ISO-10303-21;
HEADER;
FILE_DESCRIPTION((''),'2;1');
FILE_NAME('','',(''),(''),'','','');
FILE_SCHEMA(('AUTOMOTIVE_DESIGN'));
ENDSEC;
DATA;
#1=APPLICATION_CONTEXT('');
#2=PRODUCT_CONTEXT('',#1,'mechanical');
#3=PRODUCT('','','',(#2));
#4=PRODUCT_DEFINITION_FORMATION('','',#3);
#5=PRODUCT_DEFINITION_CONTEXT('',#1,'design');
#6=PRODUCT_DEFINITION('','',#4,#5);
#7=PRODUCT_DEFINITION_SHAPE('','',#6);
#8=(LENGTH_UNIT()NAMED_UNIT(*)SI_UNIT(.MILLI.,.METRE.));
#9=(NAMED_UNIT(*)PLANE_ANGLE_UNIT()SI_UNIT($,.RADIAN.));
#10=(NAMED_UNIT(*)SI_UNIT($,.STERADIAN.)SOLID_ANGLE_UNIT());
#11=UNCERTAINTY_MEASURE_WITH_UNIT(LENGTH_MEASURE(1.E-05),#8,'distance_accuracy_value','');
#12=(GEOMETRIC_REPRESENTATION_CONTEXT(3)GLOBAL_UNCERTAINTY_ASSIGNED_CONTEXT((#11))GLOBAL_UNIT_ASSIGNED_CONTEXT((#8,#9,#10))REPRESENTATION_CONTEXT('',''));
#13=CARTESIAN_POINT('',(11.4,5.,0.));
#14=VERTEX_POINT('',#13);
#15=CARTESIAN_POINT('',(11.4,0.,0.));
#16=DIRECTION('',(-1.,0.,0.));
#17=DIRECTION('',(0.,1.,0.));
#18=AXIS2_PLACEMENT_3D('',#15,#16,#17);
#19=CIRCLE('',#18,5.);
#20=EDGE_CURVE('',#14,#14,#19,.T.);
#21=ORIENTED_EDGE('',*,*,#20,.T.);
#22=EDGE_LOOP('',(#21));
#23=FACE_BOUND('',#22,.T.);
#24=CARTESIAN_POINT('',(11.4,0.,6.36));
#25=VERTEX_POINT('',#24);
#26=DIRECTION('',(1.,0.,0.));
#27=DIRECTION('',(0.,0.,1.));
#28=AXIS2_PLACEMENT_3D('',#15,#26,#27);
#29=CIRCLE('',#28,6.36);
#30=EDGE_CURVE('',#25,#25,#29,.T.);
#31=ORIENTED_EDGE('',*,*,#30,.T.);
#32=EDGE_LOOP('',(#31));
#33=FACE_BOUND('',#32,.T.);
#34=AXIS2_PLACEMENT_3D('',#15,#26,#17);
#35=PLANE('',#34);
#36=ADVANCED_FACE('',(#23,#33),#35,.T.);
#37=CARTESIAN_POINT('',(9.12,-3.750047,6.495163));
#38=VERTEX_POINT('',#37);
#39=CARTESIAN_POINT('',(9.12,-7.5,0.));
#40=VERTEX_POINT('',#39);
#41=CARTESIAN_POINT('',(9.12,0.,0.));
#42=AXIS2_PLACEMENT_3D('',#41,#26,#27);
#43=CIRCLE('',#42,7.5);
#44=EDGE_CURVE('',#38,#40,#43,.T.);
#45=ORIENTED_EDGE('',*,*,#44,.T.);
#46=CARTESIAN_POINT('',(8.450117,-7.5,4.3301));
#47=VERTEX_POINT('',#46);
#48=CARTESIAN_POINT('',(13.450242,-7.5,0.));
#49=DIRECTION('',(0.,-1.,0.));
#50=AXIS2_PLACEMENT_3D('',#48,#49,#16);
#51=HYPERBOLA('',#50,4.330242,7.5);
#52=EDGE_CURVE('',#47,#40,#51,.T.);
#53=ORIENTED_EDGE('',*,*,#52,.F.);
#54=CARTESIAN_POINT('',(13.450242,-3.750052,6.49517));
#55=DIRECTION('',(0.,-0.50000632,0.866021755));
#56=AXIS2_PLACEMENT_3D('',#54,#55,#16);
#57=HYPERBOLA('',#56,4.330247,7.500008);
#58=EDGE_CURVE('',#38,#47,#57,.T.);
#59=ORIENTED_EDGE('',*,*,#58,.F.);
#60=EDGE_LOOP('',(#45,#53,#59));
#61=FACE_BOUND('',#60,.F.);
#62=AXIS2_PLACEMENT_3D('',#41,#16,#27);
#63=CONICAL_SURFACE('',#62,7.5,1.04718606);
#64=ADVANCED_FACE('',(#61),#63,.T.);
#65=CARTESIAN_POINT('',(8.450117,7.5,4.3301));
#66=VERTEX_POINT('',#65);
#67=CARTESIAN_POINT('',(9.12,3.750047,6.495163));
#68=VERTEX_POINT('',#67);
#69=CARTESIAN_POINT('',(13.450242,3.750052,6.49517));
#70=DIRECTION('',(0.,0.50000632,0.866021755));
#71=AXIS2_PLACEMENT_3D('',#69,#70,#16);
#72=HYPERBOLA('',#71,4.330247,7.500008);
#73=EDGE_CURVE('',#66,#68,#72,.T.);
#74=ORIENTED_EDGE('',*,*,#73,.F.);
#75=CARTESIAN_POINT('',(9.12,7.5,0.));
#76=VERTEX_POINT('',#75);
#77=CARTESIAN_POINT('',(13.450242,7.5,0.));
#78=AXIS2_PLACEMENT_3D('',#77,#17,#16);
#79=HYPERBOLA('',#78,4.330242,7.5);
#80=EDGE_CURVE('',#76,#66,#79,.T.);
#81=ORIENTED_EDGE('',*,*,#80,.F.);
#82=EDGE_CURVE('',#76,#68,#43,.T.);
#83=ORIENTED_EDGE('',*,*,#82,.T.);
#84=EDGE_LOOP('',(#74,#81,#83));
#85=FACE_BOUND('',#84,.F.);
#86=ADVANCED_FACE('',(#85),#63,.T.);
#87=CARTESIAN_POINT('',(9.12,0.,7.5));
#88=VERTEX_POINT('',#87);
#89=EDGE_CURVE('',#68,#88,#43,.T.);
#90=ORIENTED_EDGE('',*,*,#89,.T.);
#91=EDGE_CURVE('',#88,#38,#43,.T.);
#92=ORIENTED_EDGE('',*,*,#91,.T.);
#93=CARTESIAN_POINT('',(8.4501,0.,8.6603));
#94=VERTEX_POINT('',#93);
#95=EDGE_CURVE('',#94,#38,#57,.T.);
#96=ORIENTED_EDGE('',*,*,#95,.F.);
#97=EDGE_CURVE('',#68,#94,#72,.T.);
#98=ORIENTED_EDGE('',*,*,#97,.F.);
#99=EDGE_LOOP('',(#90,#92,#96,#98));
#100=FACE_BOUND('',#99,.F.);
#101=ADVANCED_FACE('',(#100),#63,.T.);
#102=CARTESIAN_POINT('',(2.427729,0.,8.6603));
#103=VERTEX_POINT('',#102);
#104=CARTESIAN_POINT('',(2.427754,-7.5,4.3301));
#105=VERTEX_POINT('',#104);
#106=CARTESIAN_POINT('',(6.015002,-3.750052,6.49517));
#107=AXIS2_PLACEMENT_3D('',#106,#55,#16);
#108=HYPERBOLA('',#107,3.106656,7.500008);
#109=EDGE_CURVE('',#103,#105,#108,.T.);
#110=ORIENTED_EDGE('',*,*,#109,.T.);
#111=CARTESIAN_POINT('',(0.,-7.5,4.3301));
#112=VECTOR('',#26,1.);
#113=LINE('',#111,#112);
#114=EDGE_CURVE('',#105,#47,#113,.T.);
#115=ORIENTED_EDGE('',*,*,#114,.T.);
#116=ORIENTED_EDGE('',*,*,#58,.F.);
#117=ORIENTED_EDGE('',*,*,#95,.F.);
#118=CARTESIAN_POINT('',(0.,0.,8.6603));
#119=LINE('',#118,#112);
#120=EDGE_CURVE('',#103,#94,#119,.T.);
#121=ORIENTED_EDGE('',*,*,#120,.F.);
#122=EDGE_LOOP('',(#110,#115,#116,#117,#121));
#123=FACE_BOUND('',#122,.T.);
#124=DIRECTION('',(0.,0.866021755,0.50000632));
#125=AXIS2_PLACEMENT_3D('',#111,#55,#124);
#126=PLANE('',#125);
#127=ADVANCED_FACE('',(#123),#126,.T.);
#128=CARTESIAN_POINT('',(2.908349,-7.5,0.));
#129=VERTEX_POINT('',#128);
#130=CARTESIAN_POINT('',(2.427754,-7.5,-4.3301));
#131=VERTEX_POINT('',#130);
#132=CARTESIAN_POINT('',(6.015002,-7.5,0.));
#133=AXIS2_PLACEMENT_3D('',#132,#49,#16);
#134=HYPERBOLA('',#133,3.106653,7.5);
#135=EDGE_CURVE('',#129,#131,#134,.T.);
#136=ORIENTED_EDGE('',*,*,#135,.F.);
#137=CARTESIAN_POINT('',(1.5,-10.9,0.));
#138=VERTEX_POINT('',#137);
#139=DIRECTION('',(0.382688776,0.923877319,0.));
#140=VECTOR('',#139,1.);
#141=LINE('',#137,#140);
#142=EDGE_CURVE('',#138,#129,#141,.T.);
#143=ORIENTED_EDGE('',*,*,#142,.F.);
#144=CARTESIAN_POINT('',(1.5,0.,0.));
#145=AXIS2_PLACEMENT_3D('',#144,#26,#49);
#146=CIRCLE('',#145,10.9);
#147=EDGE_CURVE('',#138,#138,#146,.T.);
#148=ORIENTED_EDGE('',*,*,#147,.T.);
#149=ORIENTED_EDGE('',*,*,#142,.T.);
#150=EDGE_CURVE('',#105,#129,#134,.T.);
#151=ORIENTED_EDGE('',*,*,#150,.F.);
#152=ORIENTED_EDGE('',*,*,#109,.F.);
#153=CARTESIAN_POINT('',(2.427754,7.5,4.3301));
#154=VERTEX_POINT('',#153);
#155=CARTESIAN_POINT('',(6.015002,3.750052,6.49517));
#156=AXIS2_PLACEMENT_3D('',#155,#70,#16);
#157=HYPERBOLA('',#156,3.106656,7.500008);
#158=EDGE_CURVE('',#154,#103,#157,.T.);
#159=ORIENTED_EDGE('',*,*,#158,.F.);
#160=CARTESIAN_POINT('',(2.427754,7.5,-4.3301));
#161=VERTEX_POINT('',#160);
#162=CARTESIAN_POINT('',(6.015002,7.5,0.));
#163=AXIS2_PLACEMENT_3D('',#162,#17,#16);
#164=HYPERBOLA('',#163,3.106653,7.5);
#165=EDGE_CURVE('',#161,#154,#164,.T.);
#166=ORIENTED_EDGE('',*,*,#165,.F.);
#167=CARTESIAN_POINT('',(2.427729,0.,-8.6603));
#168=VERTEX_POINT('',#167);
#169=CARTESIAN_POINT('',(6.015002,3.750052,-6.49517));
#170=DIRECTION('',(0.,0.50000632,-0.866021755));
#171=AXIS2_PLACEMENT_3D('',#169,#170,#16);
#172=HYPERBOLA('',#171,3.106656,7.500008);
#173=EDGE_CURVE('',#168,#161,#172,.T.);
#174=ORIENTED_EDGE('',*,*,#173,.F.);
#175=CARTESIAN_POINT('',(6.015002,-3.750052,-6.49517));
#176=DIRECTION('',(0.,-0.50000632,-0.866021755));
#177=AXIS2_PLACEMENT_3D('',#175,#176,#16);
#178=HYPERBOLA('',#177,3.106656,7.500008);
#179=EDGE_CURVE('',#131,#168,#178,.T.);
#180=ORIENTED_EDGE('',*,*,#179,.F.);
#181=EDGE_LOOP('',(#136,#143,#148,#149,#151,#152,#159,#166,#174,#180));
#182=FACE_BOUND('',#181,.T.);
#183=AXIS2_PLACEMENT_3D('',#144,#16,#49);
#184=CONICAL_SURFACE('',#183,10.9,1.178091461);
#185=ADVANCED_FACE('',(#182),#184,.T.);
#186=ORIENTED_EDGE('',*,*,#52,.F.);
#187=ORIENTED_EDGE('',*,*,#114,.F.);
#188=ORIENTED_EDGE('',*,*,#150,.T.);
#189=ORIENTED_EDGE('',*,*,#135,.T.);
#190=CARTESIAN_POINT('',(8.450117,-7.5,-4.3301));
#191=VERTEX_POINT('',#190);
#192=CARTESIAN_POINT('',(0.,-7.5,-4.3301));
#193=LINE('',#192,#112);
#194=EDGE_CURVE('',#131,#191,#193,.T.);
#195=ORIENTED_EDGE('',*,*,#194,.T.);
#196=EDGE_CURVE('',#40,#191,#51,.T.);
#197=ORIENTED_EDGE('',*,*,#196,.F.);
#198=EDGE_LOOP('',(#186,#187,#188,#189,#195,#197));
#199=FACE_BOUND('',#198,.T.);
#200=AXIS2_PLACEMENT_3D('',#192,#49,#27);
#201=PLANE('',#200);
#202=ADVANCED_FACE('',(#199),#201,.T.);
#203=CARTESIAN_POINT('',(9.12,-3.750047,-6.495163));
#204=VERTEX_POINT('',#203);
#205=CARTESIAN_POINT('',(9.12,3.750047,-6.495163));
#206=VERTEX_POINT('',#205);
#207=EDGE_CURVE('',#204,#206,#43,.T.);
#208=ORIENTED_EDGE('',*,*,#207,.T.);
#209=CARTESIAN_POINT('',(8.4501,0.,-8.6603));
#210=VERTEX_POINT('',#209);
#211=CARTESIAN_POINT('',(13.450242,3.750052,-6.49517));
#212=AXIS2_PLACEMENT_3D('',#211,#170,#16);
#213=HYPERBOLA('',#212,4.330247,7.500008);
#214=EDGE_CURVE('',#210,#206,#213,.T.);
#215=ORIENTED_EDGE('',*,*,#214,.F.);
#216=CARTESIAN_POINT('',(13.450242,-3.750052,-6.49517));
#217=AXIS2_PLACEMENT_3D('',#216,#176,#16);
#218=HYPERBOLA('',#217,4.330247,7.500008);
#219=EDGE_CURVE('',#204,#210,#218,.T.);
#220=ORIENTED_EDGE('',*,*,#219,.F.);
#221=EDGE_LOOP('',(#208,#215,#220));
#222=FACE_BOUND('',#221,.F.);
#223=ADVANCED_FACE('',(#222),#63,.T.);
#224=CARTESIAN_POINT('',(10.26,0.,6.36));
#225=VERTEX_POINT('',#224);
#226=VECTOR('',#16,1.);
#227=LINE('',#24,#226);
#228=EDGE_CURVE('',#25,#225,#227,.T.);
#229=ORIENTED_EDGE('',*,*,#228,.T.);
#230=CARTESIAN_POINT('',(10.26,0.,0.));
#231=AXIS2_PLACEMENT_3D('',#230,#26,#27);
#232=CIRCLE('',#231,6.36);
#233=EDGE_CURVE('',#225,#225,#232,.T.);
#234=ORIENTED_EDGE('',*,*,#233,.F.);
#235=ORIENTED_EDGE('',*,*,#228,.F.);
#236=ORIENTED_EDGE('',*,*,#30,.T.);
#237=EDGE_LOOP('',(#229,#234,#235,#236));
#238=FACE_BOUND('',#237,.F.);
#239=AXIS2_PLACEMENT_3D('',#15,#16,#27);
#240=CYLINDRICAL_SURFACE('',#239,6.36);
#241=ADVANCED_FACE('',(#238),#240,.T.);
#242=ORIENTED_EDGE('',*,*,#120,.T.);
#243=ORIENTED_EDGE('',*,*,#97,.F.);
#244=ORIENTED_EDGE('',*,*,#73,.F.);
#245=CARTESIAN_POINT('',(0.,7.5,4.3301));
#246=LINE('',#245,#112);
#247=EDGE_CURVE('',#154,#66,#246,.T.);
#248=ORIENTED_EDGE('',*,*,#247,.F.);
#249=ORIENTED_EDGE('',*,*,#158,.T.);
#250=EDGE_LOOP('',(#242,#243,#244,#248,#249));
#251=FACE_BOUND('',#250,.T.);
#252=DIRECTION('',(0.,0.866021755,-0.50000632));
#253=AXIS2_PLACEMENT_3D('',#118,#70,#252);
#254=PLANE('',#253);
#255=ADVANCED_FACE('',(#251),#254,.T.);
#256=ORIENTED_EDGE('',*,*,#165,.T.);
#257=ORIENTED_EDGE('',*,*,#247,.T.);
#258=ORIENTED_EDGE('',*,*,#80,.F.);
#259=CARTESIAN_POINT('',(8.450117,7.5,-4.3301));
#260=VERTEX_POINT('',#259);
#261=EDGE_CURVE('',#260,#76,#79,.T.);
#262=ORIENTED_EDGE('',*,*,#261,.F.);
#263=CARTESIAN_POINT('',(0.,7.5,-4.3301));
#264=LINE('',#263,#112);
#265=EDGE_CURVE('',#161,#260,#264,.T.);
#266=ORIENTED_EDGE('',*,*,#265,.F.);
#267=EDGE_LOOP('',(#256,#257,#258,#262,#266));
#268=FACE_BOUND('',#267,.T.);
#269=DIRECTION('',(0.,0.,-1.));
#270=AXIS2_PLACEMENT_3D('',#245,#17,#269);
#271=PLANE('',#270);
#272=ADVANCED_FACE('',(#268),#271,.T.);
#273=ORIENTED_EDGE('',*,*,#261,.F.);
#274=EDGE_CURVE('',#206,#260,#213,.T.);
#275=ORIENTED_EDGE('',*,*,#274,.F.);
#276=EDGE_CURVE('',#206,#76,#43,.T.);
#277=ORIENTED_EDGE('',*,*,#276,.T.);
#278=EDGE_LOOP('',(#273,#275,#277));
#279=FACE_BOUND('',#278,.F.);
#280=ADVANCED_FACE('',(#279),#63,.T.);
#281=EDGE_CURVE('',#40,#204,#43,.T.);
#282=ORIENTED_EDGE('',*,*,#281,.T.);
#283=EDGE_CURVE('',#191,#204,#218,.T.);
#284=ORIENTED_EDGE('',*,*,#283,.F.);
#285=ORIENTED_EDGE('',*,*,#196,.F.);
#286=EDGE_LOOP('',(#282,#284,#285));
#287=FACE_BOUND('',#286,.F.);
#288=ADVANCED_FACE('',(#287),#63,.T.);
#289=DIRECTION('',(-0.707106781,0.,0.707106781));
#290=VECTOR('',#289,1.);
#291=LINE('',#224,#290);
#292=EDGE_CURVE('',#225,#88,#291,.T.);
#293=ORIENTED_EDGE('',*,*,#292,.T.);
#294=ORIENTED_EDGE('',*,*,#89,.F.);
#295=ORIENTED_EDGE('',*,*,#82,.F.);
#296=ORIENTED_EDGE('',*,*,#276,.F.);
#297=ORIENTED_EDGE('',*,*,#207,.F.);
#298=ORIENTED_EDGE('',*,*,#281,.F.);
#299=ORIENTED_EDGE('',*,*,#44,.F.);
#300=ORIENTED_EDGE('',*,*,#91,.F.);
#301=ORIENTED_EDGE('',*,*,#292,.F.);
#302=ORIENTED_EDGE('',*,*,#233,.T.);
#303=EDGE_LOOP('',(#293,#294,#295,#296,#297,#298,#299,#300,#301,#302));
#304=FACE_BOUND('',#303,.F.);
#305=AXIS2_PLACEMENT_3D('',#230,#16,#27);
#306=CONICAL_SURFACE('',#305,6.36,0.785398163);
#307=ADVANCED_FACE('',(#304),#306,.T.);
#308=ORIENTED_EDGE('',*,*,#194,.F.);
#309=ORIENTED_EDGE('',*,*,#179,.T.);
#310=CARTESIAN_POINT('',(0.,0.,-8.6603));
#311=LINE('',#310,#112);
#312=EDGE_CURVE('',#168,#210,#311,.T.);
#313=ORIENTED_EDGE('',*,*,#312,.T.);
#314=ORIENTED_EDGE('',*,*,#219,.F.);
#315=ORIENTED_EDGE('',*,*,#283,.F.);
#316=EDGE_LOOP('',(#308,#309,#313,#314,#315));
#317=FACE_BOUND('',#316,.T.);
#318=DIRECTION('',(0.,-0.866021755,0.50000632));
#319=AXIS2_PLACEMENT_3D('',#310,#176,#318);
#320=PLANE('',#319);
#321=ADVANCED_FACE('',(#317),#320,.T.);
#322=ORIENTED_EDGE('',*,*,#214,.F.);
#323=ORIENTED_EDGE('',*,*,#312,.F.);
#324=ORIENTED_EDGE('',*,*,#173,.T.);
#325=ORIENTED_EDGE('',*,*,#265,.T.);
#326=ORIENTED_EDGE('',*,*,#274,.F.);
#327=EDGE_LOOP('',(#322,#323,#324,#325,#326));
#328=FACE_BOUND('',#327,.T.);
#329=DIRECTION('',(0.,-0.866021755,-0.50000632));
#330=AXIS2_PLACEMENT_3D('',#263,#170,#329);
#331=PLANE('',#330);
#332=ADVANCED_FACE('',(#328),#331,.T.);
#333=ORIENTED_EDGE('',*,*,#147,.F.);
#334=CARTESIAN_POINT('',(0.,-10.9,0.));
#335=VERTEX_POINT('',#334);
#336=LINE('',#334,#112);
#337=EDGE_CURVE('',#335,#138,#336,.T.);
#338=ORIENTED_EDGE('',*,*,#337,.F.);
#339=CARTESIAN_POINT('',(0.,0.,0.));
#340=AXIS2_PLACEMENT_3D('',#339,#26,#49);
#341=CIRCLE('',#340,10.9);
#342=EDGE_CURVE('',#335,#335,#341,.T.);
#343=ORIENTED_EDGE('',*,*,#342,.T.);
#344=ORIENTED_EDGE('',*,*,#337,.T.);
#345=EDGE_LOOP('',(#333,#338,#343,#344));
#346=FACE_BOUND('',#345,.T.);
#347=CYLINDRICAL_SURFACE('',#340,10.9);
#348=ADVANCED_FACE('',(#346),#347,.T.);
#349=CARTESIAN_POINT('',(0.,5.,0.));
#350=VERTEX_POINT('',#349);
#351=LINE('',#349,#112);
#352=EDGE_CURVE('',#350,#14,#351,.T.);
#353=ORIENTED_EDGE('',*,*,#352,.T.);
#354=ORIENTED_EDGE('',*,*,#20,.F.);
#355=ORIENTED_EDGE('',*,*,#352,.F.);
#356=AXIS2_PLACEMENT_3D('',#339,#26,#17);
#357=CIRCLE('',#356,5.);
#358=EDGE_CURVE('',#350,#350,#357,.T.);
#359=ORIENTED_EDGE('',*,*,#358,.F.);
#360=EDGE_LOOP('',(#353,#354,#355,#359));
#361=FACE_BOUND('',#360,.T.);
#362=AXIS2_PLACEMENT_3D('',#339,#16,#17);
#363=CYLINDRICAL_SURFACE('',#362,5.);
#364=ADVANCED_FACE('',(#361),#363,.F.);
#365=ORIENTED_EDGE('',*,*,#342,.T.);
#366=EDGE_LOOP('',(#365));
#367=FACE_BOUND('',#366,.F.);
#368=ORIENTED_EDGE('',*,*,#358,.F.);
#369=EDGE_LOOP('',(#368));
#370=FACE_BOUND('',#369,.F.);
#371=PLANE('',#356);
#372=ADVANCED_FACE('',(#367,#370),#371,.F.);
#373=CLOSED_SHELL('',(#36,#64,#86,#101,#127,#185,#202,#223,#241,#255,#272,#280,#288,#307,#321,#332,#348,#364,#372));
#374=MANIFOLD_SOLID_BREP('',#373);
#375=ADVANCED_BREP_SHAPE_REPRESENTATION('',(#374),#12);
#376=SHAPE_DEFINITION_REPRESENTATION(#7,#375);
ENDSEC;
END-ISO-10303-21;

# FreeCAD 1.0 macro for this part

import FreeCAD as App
import Part
import Sketcher

V = App.Vector
Q = App.Units.Quantity


def add_polygon(sketch, points):
    """Adds a closed chain of lines whose ends are joined by coincident constraints."""
    first, n = sketch.GeometryCount, len(points)
    for a, b in zip(points, points[1:] + points[:1]):
        sketch.addGeometry(Part.LineSegment(App.Vector(*a, 0), App.Vector(*b, 0)), False)
    for i in range(n):
        sketch.addConstraint(Sketcher.Constraint("Coincident", first + i, 2, first + (i + 1) % n, 1))

doc = App.newDocument("Part")
body = doc.addObject("PartDesign::Body", "Body")

# Sketch on YZ plane
sketch1 = doc.addObject("Sketcher::SketchObject", "Sketch")
body.addObject(sketch1)
sketch1.AttachmentSupport = (doc.YZ_Plane, [""])
sketch1.MapMode = "FlatFace"
add_polygon(sketch1, [(0, 9), (-8, 4), (-8, -4), (0, -9), (8, -4), (8, 4)])  # lines 0-5
sketch1.addGeometry(Part.Circle(V(0, 0, 0), V(0, 0, 1), 5), False)  # 6
sketch1.addConstraint(Sketcher.Constraint("Vertical", 1))
sketch1.addConstraint(Sketcher.Constraint("Vertical", 4))
sketch1.addConstraint(Sketcher.Constraint("Coincident", 6, 3, -1, 1))
sketch1.addConstraint(Sketcher.Constraint("Symmetric", 0, 2, 3, 2, -1, 1))
sketch1.addConstraint(Sketcher.Constraint("Symmetric", 2, 2, 5, 2, -1, 1))
sketch1.addConstraint(Sketcher.Constraint("PointOnObject", 2, 2, -2))
sketch1.addConstraint(Sketcher.Constraint("Parallel", 2, 5))
sketch1.addConstraint(Sketcher.Constraint("Horizontal", 1, 2, 3, 2))
sketch1.addConstraint(Sketcher.Constraint("Diameter", 6, Q("10 mm")))
sketch1.addConstraint(Sketcher.Constraint("Angle", 0, Q("-149.9996 deg")))
sketch1.addConstraint(Sketcher.Constraint("DistanceX", 1, 2, 3, 2, Q("15 mm")))
sketch1.addConstraint(Sketcher.Constraint("DistanceY", -1, 1, 0, 2, Q("4.33 mm")))
pad1 = doc.addObject("PartDesign::Pad", "Pad")
body.addObject(pad1)
pad1.Profile = sketch1
pad1.Length = 11.4

# Sketch on XY plane
sketch2 = doc.addObject("Sketcher::SketchObject", "Sketch001")
body.addObject(sketch2)
sketch2.AttachmentSupport = (doc.XY_Plane, [""])
sketch2.MapMode = "FlatFace"
add_polygon(sketch2, [(3.9, -5), (0, -5), (0, -10.9), (1.5, -10.9)])  # lines 0-3
sketch2.addConstraint(Sketcher.Constraint("Horizontal", 0))
sketch2.addConstraint(Sketcher.Constraint("Vertical", 1))
sketch2.addConstraint(Sketcher.Constraint("Horizontal", 2))
sketch2.addConstraint(Sketcher.Constraint("PointOnObject", 0, 2, -2))
sketch2.addConstraint(Sketcher.Constraint("DistanceX", 2, 1, 2, 2, Q("1.5 mm")))
sketch2.addConstraint(Sketcher.Constraint("DistanceY", 0, 2, -1, 1, Q("5 mm")))
sketch2.addConstraint(Sketcher.Constraint("DistanceY", 1, 2, 1, 1, Q("5.9 mm")))
sketch2.addConstraint(Sketcher.Constraint("Angle", 3, Q("67.4997 deg")))
revolution = doc.addObject("PartDesign::Revolution", "Revolution")
body.addObject(revolution)
revolution.Profile = sketch2
revolution.ReferenceAxis = (sketch2, ["H_Axis"])
revolution.Angle = 360

# Sketch on XZ plane
sketch3 = doc.addObject("Sketcher::SketchObject", "Sketch002")
body.addObject(sketch3)
sketch3.AttachmentSupport = (doc.XZ_Plane, [""])
sketch3.MapMode = "FlatFace"
add_polygon(sketch3, [(11.4, 9.4), (11.4, 6.4), (10.3, 6.4), (9.1, 7.5), (8, 9.4)])  # lines 0-4
sketch3.addConstraint(Sketcher.Constraint("Vertical", 0))
sketch3.addConstraint(Sketcher.Constraint("Horizontal", 1))
sketch3.addConstraint(Sketcher.Constraint("Horizontal", 4))
sketch3.addConstraint(Sketcher.Constraint("DistanceY", 0, 2, 0, 1, Q("3 mm")))
sketch3.addConstraint(Sketcher.Constraint("Angle", 2, Q("135 deg")))
sketch3.addConstraint(Sketcher.Constraint("DistanceX", 1, 2, 1, 1, Q("1.14 mm")))
sketch3.addConstraint(Sketcher.Constraint("DistanceY", -1, 1, 0, 2, Q("6.36 mm")))
sketch3.addConstraint(Sketcher.Constraint("Angle", 3, Q("120.0007 deg")))
sketch3.addConstraint(Sketcher.Constraint("DistanceX", 2, 2, 1, 2, Q("1.14 mm")))
sketch3.addConstraint(Sketcher.Constraint("DistanceX", -1, 1, 0, 2, Q("11.4 mm")))
groove = doc.addObject("PartDesign::Groove", "Groove")
body.addObject(groove)
groove.Profile = sketch3
groove.ReferenceAxis = (sketch3, ["H_Axis"])
groove.Angle = 360

doc.recompute()
